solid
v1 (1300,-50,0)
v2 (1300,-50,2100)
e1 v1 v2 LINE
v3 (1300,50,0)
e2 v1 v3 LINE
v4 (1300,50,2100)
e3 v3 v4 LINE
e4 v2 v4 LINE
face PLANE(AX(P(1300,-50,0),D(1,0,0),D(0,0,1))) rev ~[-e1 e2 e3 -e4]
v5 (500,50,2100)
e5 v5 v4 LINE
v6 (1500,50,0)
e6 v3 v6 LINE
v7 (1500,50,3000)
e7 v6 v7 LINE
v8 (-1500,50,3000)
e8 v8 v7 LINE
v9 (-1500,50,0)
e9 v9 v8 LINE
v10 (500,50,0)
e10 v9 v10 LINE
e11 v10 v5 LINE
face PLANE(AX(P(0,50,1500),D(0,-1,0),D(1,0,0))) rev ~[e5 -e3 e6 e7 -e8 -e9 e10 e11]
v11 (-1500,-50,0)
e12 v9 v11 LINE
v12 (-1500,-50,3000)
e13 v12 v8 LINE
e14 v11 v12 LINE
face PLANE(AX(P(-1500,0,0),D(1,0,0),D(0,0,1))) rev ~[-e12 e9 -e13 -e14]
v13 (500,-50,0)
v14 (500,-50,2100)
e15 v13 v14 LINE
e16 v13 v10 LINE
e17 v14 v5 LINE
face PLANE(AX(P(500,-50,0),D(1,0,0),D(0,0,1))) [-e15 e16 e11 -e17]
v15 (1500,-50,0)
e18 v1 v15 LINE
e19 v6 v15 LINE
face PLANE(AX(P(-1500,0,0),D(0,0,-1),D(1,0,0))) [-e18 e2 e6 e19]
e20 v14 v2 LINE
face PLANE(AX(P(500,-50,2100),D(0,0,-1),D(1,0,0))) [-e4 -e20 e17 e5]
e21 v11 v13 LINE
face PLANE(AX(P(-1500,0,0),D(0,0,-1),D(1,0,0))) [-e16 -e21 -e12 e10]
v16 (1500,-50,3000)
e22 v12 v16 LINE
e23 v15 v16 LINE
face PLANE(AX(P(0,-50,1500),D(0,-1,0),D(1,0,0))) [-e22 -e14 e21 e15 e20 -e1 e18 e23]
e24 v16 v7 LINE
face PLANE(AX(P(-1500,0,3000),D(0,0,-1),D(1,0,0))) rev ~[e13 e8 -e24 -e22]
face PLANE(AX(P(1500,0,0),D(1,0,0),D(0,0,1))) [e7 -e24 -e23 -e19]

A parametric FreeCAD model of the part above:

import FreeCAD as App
import Part
import Sketcher
from FreeCAD import Vector


def add_polygon(sketch, points):
    """Adds a closed chain of lines whose ends are joined by coincident constraints."""
    first, n = sketch.GeometryCount, len(points)
    for a, b in zip(points, points[1:] + points[:1]):
        sketch.addGeometry(Part.LineSegment(App.Vector(*a, 0), App.Vector(*b, 0)), False)
    for i in range(n):
        sketch.addConstraint(Sketcher.Constraint("Coincident", first + i, 2, first + (i + 1) % n, 1))

doc = App.newDocument("Part")
body = doc.addObject("PartDesign::Body", "Body")

# Sketch on XZ plane
sketch1 = body.newObject("Sketcher::SketchObject", "Sketch")
sketch1.AttachmentSupport = (doc.getObject("XZ_Plane"), [""])
sketch1.MapMode = "FlatFace"
add_polygon(sketch1, [(-1500, 3000), (-1500, 0), (1500, 0), (1500, 3000)])  # lines 0-3
sketch1.addConstraint([
    Sketcher.Constraint("Vertical", 0),
    Sketcher.Constraint("Horizontal", 1),
    Sketcher.Constraint("Vertical", 2),
    Sketcher.Constraint("Horizontal", 3),
    Sketcher.Constraint("Symmetric", 0, 2, 1, 2, -1, 1),
    Sketcher.Constraint("Equal", 3, 0),
    Sketcher.Constraint("DistanceX", 1, 1, 1, 2, 3000.0),
])
pad1 = body.newObject("PartDesign::Pad", "Pad")
pad1.Profile = sketch1
pad1.Length = 100
pad1.Midplane = True

# Sketch on XZ plane
sketch2 = body.newObject("Sketcher::SketchObject", "Sketch001")
sketch2.AttachmentSupport = (doc.getObject("XZ_Plane"), [""])
sketch2.MapMode = "FlatFace"
sketch2.AttachmentOffset = App.Placement(Vector(0, 0, 50), App.Rotation())
add_polygon(sketch2, [(500, 2100), (500, 0), (1300, 0), (1300, 2100)])  # lines 0-3
sketch2.addConstraint([
    Sketcher.Constraint("Vertical", 0),
    Sketcher.Constraint("Horizontal", 1),
    Sketcher.Constraint("Vertical", 2),
    Sketcher.Constraint("Horizontal", 3),
    Sketcher.Constraint("PointOnObject", 0, 2, -1),
    Sketcher.Constraint("DistanceX", 1, 1, 1, 2, 800.0),
    Sketcher.Constraint("DistanceY", 0, 2, 0, 1, 2100.0),
    Sketcher.Constraint("DistanceX", -1, 1, 0, 2, 500.0),
])
pocket1 = body.newObject("PartDesign::Pocket", "Pocket")
pocket1.Profile = sketch2
pocket1.Type = "ThroughAll"

doc.recompute()
